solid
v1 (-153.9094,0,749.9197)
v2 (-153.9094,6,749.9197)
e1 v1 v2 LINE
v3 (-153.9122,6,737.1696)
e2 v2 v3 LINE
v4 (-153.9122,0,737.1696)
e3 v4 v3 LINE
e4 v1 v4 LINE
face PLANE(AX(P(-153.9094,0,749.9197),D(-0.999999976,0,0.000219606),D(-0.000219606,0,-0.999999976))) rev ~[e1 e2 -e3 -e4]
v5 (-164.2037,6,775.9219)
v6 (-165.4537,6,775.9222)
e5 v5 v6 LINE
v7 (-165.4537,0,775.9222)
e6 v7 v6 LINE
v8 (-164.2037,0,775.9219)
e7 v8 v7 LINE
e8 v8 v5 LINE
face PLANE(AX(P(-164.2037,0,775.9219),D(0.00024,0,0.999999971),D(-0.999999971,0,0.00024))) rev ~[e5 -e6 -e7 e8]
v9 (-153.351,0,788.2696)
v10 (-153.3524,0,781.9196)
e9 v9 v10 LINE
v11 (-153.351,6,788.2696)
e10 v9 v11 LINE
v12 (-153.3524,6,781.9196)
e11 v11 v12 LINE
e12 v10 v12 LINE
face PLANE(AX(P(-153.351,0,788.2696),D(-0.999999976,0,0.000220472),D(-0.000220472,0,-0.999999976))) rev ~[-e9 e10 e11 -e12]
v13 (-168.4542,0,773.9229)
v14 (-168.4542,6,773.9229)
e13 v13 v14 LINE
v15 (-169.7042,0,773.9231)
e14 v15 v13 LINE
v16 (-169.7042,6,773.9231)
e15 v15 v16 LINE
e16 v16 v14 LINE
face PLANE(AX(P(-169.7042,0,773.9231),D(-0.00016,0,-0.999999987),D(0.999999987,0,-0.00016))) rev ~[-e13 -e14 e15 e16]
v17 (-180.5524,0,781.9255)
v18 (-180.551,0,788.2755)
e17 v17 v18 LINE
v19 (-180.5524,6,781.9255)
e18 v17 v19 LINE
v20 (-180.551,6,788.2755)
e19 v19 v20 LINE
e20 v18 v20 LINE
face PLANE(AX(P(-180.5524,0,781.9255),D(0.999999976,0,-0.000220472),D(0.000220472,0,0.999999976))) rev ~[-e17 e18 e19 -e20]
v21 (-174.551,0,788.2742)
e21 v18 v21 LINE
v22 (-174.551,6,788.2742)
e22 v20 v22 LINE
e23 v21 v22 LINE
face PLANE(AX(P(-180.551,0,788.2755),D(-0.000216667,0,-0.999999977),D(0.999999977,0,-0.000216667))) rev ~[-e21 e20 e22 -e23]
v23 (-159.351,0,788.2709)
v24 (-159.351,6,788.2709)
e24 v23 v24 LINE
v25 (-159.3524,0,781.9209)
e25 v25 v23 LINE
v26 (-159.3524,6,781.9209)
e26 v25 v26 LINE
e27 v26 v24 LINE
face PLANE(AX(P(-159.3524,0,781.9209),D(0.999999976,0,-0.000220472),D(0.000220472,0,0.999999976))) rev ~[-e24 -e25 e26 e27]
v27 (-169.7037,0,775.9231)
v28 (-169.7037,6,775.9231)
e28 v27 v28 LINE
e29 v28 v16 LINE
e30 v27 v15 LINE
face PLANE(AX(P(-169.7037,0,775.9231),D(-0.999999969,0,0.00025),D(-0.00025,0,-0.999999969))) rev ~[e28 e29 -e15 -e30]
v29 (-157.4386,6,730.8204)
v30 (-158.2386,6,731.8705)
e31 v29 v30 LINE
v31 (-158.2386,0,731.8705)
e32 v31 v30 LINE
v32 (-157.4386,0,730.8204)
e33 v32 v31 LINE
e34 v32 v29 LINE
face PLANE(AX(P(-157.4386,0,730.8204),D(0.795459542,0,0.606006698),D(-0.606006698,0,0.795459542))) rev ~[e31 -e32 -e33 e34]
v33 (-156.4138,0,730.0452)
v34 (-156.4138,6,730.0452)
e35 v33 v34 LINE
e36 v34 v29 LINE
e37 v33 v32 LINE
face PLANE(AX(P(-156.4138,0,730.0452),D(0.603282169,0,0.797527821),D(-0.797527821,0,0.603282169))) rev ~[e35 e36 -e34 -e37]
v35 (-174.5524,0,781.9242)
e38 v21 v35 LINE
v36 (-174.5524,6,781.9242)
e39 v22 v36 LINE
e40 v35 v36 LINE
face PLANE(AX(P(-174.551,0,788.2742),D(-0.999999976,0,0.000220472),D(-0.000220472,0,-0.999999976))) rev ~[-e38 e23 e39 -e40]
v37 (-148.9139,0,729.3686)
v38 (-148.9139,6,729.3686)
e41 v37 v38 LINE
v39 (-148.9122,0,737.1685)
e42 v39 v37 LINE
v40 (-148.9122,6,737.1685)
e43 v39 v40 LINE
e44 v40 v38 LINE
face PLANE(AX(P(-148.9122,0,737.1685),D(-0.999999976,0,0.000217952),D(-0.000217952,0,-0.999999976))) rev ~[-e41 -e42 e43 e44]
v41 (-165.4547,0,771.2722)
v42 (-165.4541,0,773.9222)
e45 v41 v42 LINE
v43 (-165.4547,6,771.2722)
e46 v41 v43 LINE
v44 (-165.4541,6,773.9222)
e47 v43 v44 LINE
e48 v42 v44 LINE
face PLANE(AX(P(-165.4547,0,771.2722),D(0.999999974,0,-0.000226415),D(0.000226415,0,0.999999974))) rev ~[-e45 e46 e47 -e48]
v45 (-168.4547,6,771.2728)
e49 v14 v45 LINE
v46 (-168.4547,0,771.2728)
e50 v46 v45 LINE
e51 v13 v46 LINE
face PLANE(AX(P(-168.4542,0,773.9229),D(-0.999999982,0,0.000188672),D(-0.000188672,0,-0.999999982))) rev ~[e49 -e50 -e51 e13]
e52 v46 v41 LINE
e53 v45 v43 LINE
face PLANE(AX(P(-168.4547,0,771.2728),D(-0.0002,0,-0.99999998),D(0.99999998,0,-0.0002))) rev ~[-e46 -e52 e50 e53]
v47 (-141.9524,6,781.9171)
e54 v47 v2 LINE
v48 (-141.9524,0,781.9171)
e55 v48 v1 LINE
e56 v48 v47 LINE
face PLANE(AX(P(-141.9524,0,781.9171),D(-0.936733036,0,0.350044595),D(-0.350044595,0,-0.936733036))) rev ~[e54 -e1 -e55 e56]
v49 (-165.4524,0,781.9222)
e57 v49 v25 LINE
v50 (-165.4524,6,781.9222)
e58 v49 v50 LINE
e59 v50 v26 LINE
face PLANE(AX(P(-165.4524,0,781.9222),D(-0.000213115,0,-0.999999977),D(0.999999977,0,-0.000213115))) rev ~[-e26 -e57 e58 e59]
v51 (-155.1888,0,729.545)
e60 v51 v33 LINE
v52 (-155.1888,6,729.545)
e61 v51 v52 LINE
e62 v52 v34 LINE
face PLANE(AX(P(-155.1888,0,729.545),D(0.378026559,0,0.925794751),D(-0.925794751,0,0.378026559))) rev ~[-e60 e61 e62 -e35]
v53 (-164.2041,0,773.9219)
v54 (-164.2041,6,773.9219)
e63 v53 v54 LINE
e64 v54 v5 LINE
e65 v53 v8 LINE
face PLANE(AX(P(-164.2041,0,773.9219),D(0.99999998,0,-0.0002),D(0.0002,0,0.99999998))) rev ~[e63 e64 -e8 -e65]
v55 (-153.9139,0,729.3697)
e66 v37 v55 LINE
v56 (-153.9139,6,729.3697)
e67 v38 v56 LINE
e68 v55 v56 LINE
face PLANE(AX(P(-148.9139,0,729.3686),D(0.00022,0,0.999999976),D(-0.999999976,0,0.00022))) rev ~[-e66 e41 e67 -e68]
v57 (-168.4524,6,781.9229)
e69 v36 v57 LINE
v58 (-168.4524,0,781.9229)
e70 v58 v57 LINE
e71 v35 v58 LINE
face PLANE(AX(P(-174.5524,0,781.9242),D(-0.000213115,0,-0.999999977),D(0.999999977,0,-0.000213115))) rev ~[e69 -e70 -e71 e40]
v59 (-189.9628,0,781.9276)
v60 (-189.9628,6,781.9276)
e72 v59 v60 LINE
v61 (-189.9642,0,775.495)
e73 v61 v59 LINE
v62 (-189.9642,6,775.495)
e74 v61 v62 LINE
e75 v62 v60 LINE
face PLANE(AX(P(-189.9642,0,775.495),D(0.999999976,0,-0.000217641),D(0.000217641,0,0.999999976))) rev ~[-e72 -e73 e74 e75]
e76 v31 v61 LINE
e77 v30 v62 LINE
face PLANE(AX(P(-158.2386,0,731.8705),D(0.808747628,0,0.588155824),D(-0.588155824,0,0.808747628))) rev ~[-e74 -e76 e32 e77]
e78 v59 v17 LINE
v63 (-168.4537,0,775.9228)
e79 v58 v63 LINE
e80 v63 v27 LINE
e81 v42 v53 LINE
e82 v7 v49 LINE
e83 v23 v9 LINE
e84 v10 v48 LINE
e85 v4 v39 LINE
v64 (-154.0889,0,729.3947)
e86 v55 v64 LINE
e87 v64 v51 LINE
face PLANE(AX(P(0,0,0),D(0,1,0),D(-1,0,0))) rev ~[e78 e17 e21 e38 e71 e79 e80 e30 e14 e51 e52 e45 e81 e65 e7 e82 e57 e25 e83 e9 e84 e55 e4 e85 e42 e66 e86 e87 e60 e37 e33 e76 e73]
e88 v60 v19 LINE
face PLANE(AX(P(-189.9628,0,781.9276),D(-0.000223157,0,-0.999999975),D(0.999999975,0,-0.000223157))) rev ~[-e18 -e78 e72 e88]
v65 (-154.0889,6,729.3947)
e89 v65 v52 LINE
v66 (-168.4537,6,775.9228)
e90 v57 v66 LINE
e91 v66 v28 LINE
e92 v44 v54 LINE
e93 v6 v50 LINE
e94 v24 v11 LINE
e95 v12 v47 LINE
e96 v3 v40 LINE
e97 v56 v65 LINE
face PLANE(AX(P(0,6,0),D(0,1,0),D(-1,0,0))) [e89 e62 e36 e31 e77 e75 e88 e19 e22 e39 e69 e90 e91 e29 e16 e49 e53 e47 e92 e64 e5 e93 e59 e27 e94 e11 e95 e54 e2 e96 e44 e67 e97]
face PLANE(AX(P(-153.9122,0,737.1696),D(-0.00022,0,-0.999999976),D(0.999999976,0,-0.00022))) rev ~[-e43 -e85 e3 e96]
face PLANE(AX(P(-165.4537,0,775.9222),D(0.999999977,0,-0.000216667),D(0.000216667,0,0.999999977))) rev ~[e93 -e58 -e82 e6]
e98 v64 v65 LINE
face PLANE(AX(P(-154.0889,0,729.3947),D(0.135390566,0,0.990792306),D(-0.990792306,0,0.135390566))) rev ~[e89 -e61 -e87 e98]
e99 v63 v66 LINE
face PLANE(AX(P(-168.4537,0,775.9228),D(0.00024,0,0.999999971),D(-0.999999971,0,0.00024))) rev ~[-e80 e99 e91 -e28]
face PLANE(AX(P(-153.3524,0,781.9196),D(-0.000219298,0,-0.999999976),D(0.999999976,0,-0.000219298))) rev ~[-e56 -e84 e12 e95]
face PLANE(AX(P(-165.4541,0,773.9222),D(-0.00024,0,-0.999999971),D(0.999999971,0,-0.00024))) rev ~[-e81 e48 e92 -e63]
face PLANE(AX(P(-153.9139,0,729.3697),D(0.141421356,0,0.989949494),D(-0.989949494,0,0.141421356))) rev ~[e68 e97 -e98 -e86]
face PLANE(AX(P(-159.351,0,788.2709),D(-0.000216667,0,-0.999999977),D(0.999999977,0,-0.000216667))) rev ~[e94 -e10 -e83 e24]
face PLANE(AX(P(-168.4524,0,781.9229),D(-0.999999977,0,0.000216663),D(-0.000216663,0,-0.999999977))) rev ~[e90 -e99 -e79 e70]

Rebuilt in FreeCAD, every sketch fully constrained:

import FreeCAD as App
import Part
import Sketcher
from FreeCAD import Vector


def add_polygon(sketch, points):
    """Adds a closed chain of lines whose ends are joined by coincident constraints."""
    first, n = sketch.GeometryCount, len(points)
    for a, b in zip(points, points[1:] + points[:1]):
        sketch.addGeometry(Part.LineSegment(App.Vector(*a, 0), App.Vector(*b, 0)), False)
    for i in range(n):
        sketch.addConstraint(Sketcher.Constraint("Coincident", first + i, 2, first + (i + 1) % n, 1))

doc = App.newDocument("Part")
body = doc.addObject("PartDesign::Body", "Body")

# Sketch on XZ plane
sketch1 = body.newObject("Sketcher::SketchObject", "Sketch")
sketch1.AttachmentSupport = (doc.getObject("XZ_Plane"), [""])
sketch1.MapMode = "FlatFace"
add_polygon(sketch1, [(-189.9628, 781.9276), (-180.5524, 781.9255), (-180.551, 788.2755), (-174.551, 788.2742), (-174.5524, 781.9242), (-168.4524, 781.9229), (-168.4537, 775.9228), (-169.7037, 775.9231), (-169.7042, 773.9231), (-168.4542, 773.9229), (-168.4547, 771.2728), (-165.4547, 771.2722), (-165.4541, 773.9222), (-164.2041, 773.9219), (-164.2037, 775.9219), (-165.4537, 775.9222), (-165.4524, 781.9222), (-159.3524, 781.9209), (-159.351, 788.2709), (-153.351, 788.2696), (-153.3524, 781.9196), (-141.9524, 781.9171), (-153.9094, 749.9197), (-153.9122, 737.1696), (-148.9122, 737.1685), (-148.9139, 729.3686), (-153.9139, 729.3697), (-154.0889, 729.3947), (-155.1888, 729.545), (-156.4138, 730.0452), (-157.4386, 730.8204), (-158.2386, 731.8705), (-189.9642, 775.495)])  # lines 0-32
sketch1.addConstraint(Sketcher.Constraint("Horizontal", 8))
sketch1.addConstraint(Sketcher.Constraint("Distance", 2, 6.0))
sketch1.addConstraint(Sketcher.Constraint("Distance", 5, 6.0))
sketch1.addConstraint(Sketcher.Constraint("Distance", 7, 2.0))
sketch1.addConstraint(Sketcher.Constraint("Distance", 10, 3.0))
sketch1.addConstraint(Sketcher.Constraint("Distance", 13, 2.0))
sketch1.addConstraint(Sketcher.Constraint("Distance", 15, 6.0))
sketch1.addConstraint(Sketcher.Constraint("Distance", 18, 6.0))
sketch1.addConstraint(Sketcher.Constraint("Distance", 23, 5.0))
sketch1.addConstraint(Sketcher.Constraint("Distance", 25, 5.0))
sketch1.addConstraint(Sketcher.Constraint("DistanceX", 0, 2, 3, 2, 6.0))
sketch1.addConstraint(Sketcher.Constraint("DistanceY", 8, 2, 5, 2, 2.0))
sketch1.addConstraint(Sketcher.Constraint("DistanceX", 8, 2, 11, 2, 3.0))
sketch1.addConstraint(Sketcher.Constraint("DistanceY", 11, 2, 14, 2, 2.0))
sketch1.addConstraint(Sketcher.Constraint("DistanceX", 5, 2, 14, 2, 3.0))
sketch1.addConstraint(Sketcher.Constraint("DistanceX", 4, 2, 15, 2, 3.0))
sketch1.addConstraint(Sketcher.Constraint("DistanceX", 16, 2, 19, 2, 6.0))
sketch1.addConstraint(Sketcher.Constraint("Distance", 4, 6.1))
sketch1.addConstraint(Sketcher.Constraint("Distance", 16, 6.1))
sketch1.addConstraint(Sketcher.Constraint("Distance", 20, 11.4))
sketch1.addConstraint(Sketcher.Constraint("Distance", 24, 7.8))
sketch1.addConstraint(Sketcher.Constraint("DistanceX", 8, 1, 8, 2, 1.25))
sketch1.addConstraint(Sketcher.Constraint("DistanceY", 25, 2, 22, 2, 7.8))
sketch1.addConstraint(Sketcher.Constraint("DistanceX", 27, 2, 26, 2, 1.1))
sketch1.addConstraint(Sketcher.Constraint("DistanceX", 28, 2, 25, 2, 2.5))
sketch1.addConstraint(Sketcher.Constraint("DistanceX", 30, 2, 29, 2, 0.8))
sketch1.addConstraint(Sketcher.Constraint("Distance", 1, 6.35))
sketch1.addConstraint(Sketcher.Constraint("Distance", 3, 6.35))
sketch1.addConstraint(Sketcher.Constraint("Distance", 6, 1.25))
sketch1.addConstraint(Sketcher.Constraint("Distance", 9, 2.65))
sketch1.addConstraint(Sketcher.Constraint("Distance", 11, 2.65))
sketch1.addConstraint(Sketcher.Constraint("Distance", 12, 1.25))
sketch1.addConstraint(Sketcher.Constraint("Distance", 14, 1.25))
sketch1.addConstraint(Sketcher.Constraint("Distance", 17, 6.35))
sketch1.addConstraint(Sketcher.Constraint("Distance", 19, 6.35))
sketch1.addConstraint(Sketcher.Constraint("Distance", 22, 12.75))
sketch1.addConstraint(Sketcher.Constraint("Distance", 30, 1.32))
sketch1.addConstraint(Sketcher.Constraint("Distance", 29, 1.285))
sketch1.addConstraint(Sketcher.Constraint("DistanceX", 1, 2, -1, 1, 180.551))
sketch1.addConstraint(Sketcher.Constraint("DistanceY", -1, 1, 4, 2, 781.923))
sketch1.addConstraint(Sketcher.Constraint("DistanceX", 11, 2, -1, 1, 165.454))
sketch1.addConstraint(Sketcher.Constraint("DistanceY", -1, 1, 12, 2, 773.922))
sketch1.addConstraint(Sketcher.Constraint("DistanceY", -1, 1, 16, 2, 781.921))
sketch1.addConstraint(Sketcher.Constraint("DistanceX", 17, 2, -1, 1, 159.351))
sketch1.addConstraint(Sketcher.Constraint("DistanceY", -1, 1, 20, 2, 781.917))
sketch1.addConstraint(Sketcher.Constraint("DistanceX", 24, 2, -1, 1, 148.914))
sketch1.addConstraint(Sketcher.Constraint("DistanceX", 26, 2, -1, 1, 154.089))
sketch1.addConstraint(Sketcher.Constraint("DistanceY", -1, 1, 27, 2, 729.545))
sketch1.addConstraint(Sketcher.Constraint("DistanceY", -1, 1, 31, 2, 775.495))
sketch1.addConstraint(Sketcher.Constraint("DistanceY", 6, 2, 3, 2, 6.001))
sketch1.addConstraint(Sketcher.Constraint("DistanceX", 9, 2, 5, 2, 0.001))
sketch1.addConstraint(Sketcher.Constraint("DistanceY", 10, 2, 7, 2, 2.651))
sketch1.addConstraint(Sketcher.Constraint("DistanceY", 21, 2, 9, 2, 21.353))
sketch1.addConstraint(Sketcher.Constraint("DistanceX", 12, 2, 22, 2, 10.292))
sketch1.addConstraint(Sketcher.Constraint("DistanceY", 23, 2, 22, 2, 0.001))
sketch1.addConstraint(Sketcher.Constraint("DistanceY", 25, 2, 26, 2, 0.025))
sketch1.addConstraint(Sketcher.Constraint("DistanceY", 0, 2, 32, 2, 0.002))
sketch1.addConstraint(Sketcher.Constraint("Distance", 0, 9.4104))
sketch1.addConstraint(Sketcher.Constraint("Distance", 21, 34.1585))
sketch1.addConstraint(Sketcher.Constraint("Distance", 28, 1.3232))
sketch1.addConstraint(Sketcher.Constraint("Distance", 31, 53.9408))
sketch1.addConstraint(Sketcher.Constraint("Distance", 32, 6.4326))
sketch1.addConstraint(Sketcher.Constraint("DistanceX", 0, 2, -1, 1, 180.5524))
sketch1.addConstraint(Sketcher.Constraint("DistanceX", 5, 2, -1, 1, 168.4537))
sketch1.addConstraint(Sketcher.Constraint("DistanceY", -1, 1, 18, 2, 788.2696))
sketch1.addConstraint(Sketcher.Constraint("DistanceX", 29, 2, -1, 1, 157.4386))
pad1 = body.newObject("PartDesign::Pad", "Pad")
pad1.Profile = sketch1
pad1.Length = 6
pad1.Reversed = True

doc.recompute()
